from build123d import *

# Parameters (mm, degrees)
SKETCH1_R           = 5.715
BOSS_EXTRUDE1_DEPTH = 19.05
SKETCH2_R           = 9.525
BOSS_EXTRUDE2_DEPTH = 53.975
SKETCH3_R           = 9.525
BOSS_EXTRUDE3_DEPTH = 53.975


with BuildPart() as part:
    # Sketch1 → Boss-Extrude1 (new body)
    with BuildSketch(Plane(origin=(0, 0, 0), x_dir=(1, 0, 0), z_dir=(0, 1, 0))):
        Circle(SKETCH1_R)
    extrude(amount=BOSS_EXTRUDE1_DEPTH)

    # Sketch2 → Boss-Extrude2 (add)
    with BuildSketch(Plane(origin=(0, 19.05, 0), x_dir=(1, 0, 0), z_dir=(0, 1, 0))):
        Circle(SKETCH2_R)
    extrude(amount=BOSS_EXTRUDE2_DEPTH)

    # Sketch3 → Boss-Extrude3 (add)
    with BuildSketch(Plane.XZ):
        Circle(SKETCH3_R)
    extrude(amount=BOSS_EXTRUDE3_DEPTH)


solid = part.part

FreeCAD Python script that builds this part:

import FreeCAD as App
import Part
import Sketcher
Q = App.Units.Quantity

doc = App.newDocument("Part")
params = doc.addObject("Spreadsheet::Sheet", "Params")
for row, (alias, value) in enumerate([
    ("sketch1_diameter", "0.45 in"),
    ("pad1_length", "0.75 in"),
    ("sketch2_diameter", "0.75 in"),
    ("pad2_length", "2.125 in"),
    ("sketch3_diameter", "0.75 in"),
    ("pad3_length", "2.125 in"),
], start=1):
    params.set(f"A{row}", alias)
    params.set(f"B{row}", "=" + value)
    params.setAlias(f"B{row}", alias)

body = doc.addObject("PartDesign::Body", "Body")

# Sketch on XZ plane
sketch1 = body.newObject("Sketcher::SketchObject", "Sketch")
sketch1.AttachmentSupport = (doc.getObject("XZ_Plane"), [""])
sketch1.MapMode = "FlatFace"
sketch1.addGeometry(Part.Circle(App.Vector(0, 0, 0), App.Vector(0, 0, 1), 5.715), False)
sketch1.addConstraint(Sketcher.Constraint("Coincident", 0, 3, -1, 1))
sketch1.addConstraint(Sketcher.Constraint("Diameter", 0, Q("0.45 in")))
sketch1.setExpression("Constraints[1]", "Params.sketch1_diameter")
pad1 = body.newObject("PartDesign::Pad", "Pad")
pad1.Profile = sketch1
pad1.setExpression("Length", "Params.pad1_length")
pad1.Reversed = True

# Sketch on XZ plane
sketch2 = body.newObject("Sketcher::SketchObject", "Sketch001")
sketch2.AttachmentSupport = (doc.getObject("XZ_Plane"), [""])
sketch2.MapMode = "FlatFace"
sketch2.AttachmentOffset = App.Placement(App.Vector(0, 0, -0.75 * 25.4), App.Rotation())
sketch2.addGeometry(Part.Circle(App.Vector(0, 0, 0), App.Vector(0, 0, 1), 9.525), False)
sketch2.addConstraint(Sketcher.Constraint("Coincident", 0, 3, -1, 1))
sketch2.addConstraint(Sketcher.Constraint("Diameter", 0, Q("0.75 in")))
sketch2.setExpression("Constraints[1]", "Params.sketch2_diameter")
pad2 = body.newObject("PartDesign::Pad", "Pad001")
pad2.Profile = sketch2
pad2.setExpression("Length", "Params.pad2_length")
pad2.Reversed = True

# Sketch on XZ plane
sketch3 = body.newObject("Sketcher::SketchObject", "Sketch002")
sketch3.AttachmentSupport = (doc.getObject("XZ_Plane"), [""])
sketch3.MapMode = "FlatFace"
sketch3.addGeometry(Part.Circle(App.Vector(0, 0, 0), App.Vector(0, 0, 1), 9.525), False)
sketch3.addConstraint(Sketcher.Constraint("Coincident", 0, 3, -1, 1))
sketch3.addConstraint(Sketcher.Constraint("Diameter", 0, Q("0.75 in")))
sketch3.setExpression("Constraints[1]", "Params.sketch3_diameter")
pad3 = body.newObject("PartDesign::Pad", "Pad002")
pad3.Profile = sketch3
pad3.setExpression("Length", "Params.pad3_length")

doc.recompute()
